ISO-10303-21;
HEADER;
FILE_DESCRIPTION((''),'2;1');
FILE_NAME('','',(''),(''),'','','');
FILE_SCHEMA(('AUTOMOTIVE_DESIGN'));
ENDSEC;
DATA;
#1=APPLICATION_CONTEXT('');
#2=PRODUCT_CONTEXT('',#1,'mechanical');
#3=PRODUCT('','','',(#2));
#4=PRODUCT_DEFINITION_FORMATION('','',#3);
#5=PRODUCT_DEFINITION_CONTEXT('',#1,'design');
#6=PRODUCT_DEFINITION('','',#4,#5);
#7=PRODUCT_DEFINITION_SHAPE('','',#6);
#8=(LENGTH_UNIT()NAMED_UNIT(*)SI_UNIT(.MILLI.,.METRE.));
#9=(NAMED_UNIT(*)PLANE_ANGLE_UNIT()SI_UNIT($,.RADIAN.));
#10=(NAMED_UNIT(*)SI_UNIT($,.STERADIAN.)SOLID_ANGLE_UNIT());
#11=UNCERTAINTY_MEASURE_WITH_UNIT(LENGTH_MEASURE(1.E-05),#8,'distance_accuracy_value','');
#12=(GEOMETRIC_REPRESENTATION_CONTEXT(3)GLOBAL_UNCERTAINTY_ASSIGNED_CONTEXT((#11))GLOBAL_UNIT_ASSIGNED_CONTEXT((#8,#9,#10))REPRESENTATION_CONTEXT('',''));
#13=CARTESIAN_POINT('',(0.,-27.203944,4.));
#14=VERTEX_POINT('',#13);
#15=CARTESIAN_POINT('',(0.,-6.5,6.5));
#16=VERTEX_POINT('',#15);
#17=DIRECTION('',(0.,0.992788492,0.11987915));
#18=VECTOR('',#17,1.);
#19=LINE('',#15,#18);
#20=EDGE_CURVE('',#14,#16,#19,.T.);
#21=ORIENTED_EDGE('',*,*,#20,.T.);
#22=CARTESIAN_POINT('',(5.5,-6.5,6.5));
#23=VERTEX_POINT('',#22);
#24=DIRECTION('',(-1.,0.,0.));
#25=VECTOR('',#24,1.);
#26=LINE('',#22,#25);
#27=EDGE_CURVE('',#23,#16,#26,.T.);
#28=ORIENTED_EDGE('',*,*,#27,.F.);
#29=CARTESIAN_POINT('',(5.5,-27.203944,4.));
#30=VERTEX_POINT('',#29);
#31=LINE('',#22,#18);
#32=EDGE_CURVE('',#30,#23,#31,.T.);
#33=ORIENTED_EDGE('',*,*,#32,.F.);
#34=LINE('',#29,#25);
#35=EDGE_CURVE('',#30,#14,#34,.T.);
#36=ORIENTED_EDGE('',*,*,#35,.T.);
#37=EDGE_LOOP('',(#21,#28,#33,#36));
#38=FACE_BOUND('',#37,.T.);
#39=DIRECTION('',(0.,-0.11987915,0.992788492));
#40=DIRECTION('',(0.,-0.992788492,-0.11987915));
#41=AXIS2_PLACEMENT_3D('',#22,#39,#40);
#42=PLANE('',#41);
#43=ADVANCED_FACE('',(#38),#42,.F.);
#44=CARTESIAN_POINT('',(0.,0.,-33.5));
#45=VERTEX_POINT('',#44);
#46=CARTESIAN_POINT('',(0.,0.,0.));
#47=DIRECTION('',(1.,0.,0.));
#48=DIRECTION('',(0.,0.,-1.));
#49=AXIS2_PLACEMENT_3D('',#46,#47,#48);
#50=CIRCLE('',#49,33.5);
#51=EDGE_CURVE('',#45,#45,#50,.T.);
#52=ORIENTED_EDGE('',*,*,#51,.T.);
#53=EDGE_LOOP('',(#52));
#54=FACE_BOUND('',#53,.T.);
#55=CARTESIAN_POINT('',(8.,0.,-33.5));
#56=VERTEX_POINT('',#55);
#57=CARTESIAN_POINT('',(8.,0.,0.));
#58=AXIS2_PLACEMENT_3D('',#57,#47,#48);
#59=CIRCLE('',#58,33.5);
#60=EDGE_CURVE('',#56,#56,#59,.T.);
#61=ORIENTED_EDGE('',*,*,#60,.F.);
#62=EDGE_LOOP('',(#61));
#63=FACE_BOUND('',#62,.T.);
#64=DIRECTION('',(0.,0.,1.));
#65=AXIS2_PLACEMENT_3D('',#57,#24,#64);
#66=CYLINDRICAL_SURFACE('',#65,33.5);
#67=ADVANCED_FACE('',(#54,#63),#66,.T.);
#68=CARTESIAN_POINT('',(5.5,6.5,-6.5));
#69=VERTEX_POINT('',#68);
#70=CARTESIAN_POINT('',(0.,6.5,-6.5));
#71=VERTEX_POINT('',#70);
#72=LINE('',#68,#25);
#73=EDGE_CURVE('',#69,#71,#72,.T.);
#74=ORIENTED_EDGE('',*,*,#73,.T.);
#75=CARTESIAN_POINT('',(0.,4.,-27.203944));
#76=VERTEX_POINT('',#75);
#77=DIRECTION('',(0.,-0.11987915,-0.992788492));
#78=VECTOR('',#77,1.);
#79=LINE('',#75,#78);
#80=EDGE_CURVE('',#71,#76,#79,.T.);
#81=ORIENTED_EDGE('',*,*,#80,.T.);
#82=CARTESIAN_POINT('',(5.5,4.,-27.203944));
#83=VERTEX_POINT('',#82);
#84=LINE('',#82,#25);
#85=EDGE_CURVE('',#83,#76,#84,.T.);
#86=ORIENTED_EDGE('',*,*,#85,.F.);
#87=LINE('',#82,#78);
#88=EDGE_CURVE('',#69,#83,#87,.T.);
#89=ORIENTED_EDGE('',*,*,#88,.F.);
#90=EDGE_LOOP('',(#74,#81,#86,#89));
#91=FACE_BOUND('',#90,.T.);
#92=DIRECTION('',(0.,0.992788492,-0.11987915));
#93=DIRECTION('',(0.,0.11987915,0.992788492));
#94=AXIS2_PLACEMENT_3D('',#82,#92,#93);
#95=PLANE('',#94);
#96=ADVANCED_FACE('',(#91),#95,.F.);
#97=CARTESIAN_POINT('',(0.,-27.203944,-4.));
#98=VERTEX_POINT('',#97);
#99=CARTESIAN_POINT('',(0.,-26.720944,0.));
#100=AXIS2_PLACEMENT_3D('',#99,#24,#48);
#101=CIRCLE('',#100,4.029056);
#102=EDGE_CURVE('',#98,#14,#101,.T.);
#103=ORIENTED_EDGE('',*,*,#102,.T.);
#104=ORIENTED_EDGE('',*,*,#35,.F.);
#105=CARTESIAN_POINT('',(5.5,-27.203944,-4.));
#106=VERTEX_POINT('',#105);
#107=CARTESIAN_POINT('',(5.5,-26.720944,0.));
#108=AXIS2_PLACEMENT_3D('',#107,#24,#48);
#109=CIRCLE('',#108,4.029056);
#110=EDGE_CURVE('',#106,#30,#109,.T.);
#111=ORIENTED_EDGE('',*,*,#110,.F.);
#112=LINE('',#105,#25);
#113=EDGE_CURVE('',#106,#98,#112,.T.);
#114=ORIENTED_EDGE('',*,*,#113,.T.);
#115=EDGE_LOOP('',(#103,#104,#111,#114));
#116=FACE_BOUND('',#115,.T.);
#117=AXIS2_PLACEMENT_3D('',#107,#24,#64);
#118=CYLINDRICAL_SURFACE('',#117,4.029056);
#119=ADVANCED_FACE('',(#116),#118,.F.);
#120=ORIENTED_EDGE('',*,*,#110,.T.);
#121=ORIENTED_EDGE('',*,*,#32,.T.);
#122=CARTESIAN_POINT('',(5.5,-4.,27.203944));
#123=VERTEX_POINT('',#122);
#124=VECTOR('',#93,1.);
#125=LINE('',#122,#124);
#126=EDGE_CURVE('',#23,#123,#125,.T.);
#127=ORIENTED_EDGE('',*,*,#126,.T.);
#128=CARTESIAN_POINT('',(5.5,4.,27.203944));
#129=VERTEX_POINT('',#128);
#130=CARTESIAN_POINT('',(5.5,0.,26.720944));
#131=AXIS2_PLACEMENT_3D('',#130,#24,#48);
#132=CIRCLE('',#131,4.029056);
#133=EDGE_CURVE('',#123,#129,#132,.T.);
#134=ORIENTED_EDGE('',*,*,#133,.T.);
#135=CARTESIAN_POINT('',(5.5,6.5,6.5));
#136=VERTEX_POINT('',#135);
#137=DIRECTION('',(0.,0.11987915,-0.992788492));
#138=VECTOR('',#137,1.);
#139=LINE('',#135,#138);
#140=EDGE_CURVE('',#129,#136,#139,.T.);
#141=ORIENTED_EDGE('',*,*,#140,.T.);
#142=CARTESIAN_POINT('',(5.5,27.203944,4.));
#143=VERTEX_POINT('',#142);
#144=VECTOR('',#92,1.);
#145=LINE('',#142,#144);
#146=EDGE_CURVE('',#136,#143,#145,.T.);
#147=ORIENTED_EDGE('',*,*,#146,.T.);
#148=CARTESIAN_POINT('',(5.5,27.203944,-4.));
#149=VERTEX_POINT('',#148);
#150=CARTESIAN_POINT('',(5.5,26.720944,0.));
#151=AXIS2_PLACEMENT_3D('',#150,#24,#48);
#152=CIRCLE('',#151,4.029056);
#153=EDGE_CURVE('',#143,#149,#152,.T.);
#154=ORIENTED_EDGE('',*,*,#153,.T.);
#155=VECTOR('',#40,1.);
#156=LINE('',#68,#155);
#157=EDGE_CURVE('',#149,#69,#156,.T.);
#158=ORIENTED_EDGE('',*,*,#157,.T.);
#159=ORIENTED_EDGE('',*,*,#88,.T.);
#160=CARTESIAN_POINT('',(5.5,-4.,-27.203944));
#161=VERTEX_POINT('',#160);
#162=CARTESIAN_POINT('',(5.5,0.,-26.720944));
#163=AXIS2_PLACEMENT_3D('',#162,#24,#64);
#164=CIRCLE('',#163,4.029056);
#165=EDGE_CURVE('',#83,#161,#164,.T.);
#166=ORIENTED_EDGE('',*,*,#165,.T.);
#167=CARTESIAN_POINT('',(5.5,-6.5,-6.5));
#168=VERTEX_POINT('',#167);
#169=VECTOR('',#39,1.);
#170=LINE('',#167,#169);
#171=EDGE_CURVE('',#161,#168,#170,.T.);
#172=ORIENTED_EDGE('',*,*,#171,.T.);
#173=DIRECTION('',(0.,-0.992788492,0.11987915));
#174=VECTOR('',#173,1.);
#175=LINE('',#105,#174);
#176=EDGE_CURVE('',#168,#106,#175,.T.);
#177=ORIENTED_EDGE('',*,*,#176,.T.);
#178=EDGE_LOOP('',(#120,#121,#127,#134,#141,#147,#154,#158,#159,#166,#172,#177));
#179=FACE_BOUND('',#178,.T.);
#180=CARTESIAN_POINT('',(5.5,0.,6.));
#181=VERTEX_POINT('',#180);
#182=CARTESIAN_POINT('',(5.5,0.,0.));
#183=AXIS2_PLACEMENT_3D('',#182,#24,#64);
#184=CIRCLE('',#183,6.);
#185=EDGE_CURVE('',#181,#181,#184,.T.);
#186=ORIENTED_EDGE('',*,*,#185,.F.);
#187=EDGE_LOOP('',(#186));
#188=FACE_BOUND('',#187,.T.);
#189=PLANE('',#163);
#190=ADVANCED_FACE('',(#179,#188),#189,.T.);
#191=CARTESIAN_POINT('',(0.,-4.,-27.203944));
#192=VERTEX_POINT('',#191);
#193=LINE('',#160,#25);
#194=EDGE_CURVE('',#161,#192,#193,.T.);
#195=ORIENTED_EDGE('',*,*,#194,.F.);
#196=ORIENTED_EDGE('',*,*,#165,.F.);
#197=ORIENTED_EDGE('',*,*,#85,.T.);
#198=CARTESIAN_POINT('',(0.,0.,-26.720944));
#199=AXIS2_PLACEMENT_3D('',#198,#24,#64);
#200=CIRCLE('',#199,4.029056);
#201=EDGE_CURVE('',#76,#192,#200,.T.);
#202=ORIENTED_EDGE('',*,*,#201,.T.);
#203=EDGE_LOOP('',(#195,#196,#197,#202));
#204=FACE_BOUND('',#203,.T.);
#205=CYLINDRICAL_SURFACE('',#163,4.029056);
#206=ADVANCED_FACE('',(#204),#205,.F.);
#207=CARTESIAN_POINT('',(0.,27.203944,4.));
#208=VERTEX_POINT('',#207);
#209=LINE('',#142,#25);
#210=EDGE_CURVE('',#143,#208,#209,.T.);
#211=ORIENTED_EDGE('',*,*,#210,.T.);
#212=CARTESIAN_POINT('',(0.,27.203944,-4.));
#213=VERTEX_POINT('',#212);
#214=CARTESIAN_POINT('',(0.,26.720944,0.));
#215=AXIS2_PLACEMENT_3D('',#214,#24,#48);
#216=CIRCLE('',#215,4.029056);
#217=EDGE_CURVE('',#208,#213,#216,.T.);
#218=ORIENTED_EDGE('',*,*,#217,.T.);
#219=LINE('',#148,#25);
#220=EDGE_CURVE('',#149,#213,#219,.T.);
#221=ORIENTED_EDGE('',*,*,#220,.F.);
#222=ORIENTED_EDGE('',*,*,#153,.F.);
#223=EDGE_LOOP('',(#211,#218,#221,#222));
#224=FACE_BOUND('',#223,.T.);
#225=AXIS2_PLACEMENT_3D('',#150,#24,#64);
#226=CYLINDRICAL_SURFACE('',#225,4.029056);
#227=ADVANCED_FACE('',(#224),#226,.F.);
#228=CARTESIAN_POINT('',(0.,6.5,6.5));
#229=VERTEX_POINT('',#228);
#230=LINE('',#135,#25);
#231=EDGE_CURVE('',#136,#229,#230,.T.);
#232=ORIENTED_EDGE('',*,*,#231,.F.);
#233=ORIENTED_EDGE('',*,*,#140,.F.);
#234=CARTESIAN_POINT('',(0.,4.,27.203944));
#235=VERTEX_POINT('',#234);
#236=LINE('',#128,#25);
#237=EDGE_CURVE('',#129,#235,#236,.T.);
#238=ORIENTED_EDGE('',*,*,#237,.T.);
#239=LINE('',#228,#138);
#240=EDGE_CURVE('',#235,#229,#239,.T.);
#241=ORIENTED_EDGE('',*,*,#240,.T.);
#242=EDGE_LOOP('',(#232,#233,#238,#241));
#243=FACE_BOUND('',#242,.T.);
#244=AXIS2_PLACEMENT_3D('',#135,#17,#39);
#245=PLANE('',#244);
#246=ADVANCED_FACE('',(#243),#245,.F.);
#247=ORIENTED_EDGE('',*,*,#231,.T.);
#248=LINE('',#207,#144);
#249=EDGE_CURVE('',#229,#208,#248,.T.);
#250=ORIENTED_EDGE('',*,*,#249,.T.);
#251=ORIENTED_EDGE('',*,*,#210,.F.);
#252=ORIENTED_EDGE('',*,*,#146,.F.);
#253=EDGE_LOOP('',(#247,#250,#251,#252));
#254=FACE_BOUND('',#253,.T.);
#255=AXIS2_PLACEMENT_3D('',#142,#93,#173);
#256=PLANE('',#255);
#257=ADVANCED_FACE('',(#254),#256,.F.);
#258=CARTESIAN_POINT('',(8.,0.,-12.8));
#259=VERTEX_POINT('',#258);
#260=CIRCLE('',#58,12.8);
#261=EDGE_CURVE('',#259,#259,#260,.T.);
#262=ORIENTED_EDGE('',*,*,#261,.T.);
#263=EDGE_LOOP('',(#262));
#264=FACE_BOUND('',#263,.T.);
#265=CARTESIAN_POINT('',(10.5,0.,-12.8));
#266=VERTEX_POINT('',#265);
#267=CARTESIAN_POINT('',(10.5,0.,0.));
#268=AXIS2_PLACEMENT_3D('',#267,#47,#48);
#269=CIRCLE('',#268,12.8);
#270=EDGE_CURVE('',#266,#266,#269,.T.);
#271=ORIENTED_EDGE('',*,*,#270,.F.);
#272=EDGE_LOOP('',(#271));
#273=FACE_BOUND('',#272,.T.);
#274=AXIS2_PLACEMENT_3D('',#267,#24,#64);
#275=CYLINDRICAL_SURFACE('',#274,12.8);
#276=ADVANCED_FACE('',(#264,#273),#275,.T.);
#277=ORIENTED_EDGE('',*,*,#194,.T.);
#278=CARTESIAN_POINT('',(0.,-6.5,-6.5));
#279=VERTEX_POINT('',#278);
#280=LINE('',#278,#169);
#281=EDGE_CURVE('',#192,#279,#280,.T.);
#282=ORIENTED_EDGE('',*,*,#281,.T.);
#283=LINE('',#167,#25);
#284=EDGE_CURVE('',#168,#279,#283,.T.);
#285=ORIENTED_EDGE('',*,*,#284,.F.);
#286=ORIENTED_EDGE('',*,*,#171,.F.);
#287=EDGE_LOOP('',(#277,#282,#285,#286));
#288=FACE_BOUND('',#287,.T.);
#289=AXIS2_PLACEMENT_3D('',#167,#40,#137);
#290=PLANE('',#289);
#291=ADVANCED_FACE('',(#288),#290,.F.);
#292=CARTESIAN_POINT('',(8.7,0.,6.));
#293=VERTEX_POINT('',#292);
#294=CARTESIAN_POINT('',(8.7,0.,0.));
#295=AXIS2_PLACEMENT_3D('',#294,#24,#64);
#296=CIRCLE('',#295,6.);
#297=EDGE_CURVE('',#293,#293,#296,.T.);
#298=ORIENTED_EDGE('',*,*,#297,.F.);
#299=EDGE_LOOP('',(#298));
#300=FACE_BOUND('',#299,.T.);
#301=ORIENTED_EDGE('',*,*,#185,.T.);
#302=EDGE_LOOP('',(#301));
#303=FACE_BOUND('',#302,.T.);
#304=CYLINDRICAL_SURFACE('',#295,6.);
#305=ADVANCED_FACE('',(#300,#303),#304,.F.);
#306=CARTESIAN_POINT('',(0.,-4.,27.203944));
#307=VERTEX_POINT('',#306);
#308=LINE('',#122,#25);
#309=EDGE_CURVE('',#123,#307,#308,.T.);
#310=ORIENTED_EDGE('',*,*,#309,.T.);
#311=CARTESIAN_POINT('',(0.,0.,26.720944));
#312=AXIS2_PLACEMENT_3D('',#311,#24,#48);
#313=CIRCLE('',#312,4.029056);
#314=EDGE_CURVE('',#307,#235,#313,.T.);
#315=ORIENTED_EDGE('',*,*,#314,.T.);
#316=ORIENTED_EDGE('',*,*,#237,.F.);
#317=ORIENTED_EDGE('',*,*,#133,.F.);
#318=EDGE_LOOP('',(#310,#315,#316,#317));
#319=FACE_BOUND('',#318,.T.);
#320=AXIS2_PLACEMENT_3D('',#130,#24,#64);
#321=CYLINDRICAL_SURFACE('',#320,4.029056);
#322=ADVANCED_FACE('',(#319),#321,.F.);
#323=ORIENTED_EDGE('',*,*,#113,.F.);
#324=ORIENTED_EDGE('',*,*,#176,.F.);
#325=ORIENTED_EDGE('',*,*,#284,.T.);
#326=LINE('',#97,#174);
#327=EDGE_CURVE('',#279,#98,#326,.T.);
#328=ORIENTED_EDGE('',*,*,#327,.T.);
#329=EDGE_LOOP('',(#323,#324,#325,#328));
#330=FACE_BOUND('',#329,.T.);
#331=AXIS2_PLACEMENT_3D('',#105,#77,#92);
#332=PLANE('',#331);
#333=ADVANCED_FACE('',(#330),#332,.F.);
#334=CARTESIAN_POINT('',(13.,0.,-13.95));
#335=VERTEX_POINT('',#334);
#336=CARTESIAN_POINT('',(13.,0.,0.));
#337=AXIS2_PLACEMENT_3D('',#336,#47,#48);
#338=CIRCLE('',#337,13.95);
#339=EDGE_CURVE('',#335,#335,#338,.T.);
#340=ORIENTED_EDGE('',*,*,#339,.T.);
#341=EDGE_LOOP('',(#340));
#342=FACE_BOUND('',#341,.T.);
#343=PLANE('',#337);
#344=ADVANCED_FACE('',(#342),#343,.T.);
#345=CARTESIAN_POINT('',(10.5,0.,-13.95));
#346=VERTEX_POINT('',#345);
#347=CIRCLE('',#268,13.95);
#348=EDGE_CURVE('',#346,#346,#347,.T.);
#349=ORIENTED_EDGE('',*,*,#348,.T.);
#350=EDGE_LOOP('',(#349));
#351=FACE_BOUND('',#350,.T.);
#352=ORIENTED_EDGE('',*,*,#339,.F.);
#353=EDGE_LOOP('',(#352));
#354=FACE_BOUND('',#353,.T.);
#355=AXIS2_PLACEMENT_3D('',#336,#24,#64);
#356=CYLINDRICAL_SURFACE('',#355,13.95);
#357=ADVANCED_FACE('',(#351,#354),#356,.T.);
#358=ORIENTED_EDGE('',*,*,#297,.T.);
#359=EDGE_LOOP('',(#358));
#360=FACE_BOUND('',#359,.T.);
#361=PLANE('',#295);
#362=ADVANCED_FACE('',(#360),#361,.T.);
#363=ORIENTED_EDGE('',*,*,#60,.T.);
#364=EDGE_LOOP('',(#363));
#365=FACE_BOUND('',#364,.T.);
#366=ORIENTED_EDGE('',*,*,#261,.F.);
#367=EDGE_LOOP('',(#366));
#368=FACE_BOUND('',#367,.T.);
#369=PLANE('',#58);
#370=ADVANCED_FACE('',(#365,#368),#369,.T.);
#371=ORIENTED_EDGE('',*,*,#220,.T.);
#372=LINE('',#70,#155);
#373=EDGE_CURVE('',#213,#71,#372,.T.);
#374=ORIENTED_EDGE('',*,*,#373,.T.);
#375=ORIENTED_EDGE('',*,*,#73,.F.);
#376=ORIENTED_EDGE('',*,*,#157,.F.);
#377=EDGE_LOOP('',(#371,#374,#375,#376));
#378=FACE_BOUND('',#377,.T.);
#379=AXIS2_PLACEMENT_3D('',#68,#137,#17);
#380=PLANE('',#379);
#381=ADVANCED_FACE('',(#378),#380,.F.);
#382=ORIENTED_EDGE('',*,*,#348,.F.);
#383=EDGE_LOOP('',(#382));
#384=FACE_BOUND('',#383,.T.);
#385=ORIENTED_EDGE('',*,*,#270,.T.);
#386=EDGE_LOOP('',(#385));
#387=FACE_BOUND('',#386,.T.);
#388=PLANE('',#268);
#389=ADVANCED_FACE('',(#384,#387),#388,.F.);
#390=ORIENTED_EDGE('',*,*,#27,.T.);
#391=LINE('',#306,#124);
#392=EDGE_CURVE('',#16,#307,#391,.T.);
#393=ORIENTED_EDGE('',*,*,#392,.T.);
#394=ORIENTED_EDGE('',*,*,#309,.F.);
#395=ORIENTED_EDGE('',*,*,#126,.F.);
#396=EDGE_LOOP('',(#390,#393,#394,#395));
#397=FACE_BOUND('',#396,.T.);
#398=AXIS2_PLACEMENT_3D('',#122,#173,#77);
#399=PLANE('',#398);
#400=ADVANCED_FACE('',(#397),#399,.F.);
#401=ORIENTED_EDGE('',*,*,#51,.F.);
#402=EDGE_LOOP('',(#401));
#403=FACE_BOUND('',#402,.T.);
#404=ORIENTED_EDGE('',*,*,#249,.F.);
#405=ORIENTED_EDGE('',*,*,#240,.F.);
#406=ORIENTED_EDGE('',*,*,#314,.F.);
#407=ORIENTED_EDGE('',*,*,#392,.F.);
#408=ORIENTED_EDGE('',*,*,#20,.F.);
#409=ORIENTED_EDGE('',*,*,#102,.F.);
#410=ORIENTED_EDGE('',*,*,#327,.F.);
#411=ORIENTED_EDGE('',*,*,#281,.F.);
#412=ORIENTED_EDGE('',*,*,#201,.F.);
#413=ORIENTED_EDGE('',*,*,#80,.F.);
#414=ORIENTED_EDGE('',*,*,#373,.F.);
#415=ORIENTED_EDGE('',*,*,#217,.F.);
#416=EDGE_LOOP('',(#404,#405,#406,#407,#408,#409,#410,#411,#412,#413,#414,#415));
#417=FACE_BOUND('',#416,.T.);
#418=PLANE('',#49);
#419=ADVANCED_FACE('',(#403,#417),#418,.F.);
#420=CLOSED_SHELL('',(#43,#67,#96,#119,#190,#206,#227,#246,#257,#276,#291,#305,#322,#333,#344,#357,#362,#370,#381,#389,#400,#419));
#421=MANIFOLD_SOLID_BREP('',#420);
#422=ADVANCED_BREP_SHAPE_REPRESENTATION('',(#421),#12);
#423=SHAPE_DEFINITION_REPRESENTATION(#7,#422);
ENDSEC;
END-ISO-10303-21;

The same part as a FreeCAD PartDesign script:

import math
import FreeCAD as App
import Part
import Sketcher
Q = App.Units.Quantity

doc = App.newDocument("Part")
body = doc.addObject("PartDesign::Body", "Body")

sketch1 = body.newObject("Sketcher::SketchObject", "Sketch")
sketch1.AttachmentSupport = (doc.getObject("YZ_Plane"), [""])
sketch1.MapMode = "FlatFace"
sketch1.addGeometry(Part.Circle(App.Vector(0, 0, 0), App.Vector(0, 0, 1), 33.5), False)
sketch1.addConstraint([
    Sketcher.Constraint("Coincident", 0, 3, -1, 1),
    Sketcher.Constraint("Diameter", 0, Q("67 mm")),
])
pad1 = body.newObject("PartDesign::Pad", "Pad")
pad1.Profile = sketch1
pad1.Length = 8

sketch2 = body.newObject("Sketcher::SketchObject", "Sketch001")
sketch2.AttachmentSupport = (doc.getObject("YZ_Plane"), [""])
sketch2.MapMode = "FlatFace"
sketch2.AttachmentOffset = App.Placement(App.Vector(0, 0, 8), App.Rotation())
sketch2.addGeometry(Part.Circle(App.Vector(0, 0, 0), App.Vector(0, 0, 1), 12.8), False)
sketch2.addConstraint([
    Sketcher.Constraint("Coincident", 0, 3, -1, 1),
    Sketcher.Constraint("Diameter", 0, Q("25.6 mm")),
])
pad2 = body.newObject("PartDesign::Pad", "Pad001")
pad2.Profile = sketch2
pad2.Length = 2.5

sketch3 = body.newObject("Sketcher::SketchObject", "Sketch002")
sketch3.AttachmentSupport = (doc.getObject("YZ_Plane"), [""])
sketch3.MapMode = "FlatFace"
sketch3.AttachmentOffset = App.Placement(App.Vector(0, 0, 10.5), App.Rotation())
sketch3.addGeometry(Part.Circle(App.Vector(0, 0, 0), App.Vector(0, 0, 1), 13.95), False)
sketch3.addConstraint([
    Sketcher.Constraint("Coincident", 0, 3, -1, 1),
    Sketcher.Constraint("Diameter", 0, Q("27.9 mm")),
])
pad3 = body.newObject("PartDesign::Pad", "Pad002")
pad3.Profile = sketch3
pad3.Length = 2.5

sketch4 = body.newObject("Sketcher::SketchObject", "Sketch003")
sketch4.AttachmentSupport = (doc.getObject("YZ_Plane"), [""])
sketch4.MapMode = "FlatFace"
sketch4.addGeometry([
    Part.LineSegment(App.Vector(-6.5, -6.5, 0), App.Vector(-27.203944, -4, 0)),
    Part.ArcOfCircle(Part.Circle(App.Vector(-26.720944, 0, 0), App.Vector(0, 0, 1), 4.029056), math.radians(96.885128), math.radians(263.114872)),
    Part.LineSegment(App.Vector(-27.203944, 4, 0), App.Vector(-6.5, 6.5, 0)),
    Part.LineSegment(App.Vector(-6.5, 6.5, 0), App.Vector(-4, 27.203944, 0)),
    Part.ArcOfCircle(Part.Circle(App.Vector(0, 26.720944, 0), App.Vector(0, 0, 1), 4.029056), math.radians(6.885128), math.radians(173.114872)),
    Part.LineSegment(App.Vector(4, 27.203944, 0), App.Vector(6.5, 6.5, 0)),
    Part.LineSegment(App.Vector(6.5, 6.5, 0), App.Vector(27.203944, 4, 0)),
    Part.ArcOfCircle(Part.Circle(App.Vector(26.720944, 0, 0), App.Vector(0, 0, 1), 4.029056), math.radians(-83.114872), math.radians(83.114872)),
    Part.LineSegment(App.Vector(27.203944, -4, 0), App.Vector(6.5, -6.5, 0)),
    Part.LineSegment(App.Vector(6.5, -6.5, 0), App.Vector(4, -27.203944, 0)),
    Part.ArcOfCircle(Part.Circle(App.Vector(0, -26.720944, 0), App.Vector(0, 0, 1), 4.029056), math.radians(-173.114872), math.radians(-6.885128)),
    Part.LineSegment(App.Vector(-4, -27.203944, 0), App.Vector(-6.5, -6.5, 0)),
], False)
sketch4.addConstraint([
    Sketcher.Constraint("Tangent", 0, 2, 1, 2),
    Sketcher.Constraint("Tangent", 1, 1, 2, 1),
    Sketcher.Constraint("Coincident", 2, 2, 3, 1),
    Sketcher.Constraint("Tangent", 3, 2, 4, 2),
    Sketcher.Constraint("Tangent", 4, 1, 5, 1),
    Sketcher.Constraint("Coincident", 5, 2, 6, 1),
    Sketcher.Constraint("Tangent", 6, 2, 7, 2),
    Sketcher.Constraint("Tangent", 7, 1, 8, 1),
    Sketcher.Constraint("Coincident", 8, 2, 9, 1),
    Sketcher.Constraint("Tangent", 9, 2, 10, 2),
    Sketcher.Constraint("Tangent", 10, 1, 11, 1),
    Sketcher.Constraint("Coincident", 11, 2, 0, 1),
    Sketcher.Constraint("Equal", 1, 4),
    Sketcher.Constraint("Equal", 4, 7),
    Sketcher.Constraint("Equal", 7, 10),
    Sketcher.Constraint("Symmetric", 1, 3, 7, 3, -1, 1),
    Sketcher.Constraint("Symmetric", 4, 3, 10, 3, -1, 1),
    Sketcher.Constraint("Symmetric", 2, 2, 8, 2, -1, 1),
    Sketcher.Constraint("Symmetric", 5, 2, 11, 2, -1, 1),
    Sketcher.Constraint("Symmetric", 3, 2, 4, 1, -2),
    Sketcher.Constraint("Symmetric", 1, 1, 6, 2, -2),
    Sketcher.Constraint("Perpendicular", 0, 3),
    Sketcher.Constraint("Equal", 2, 3),
    Sketcher.Constraint("DistanceY", 0, 2, -1, 1, Q("4 mm")),
    Sketcher.Constraint("DistanceX", 2, 2, 5, 2, Q("13 mm")),
    Sketcher.Constraint("DistanceX", 0, 2, 1, 3, Q("0.483 mm")),
])
pocket1 = body.newObject("PartDesign::Pocket", "Pocket")
pocket1.Profile = sketch4
pocket1.Length = 5.5
pocket1.Reversed = True

sketch5 = body.newObject("Sketcher::SketchObject", "Sketch004")
sketch5.AttachmentSupport = (doc.getObject("YZ_Plane"), [""])
sketch5.MapMode = "FlatFace"
sketch5.AttachmentOffset = App.Placement(App.Vector(0, 0, 5.5), App.Rotation())
sketch5.addGeometry(Part.Circle(App.Vector(0, 0, 0), App.Vector(0, 0, 1), 6), False)
sketch5.addConstraint([
    Sketcher.Constraint("Coincident", 0, 3, -1, 1),
    Sketcher.Constraint("Diameter", 0, Q("12 mm")),
])
pocket2 = body.newObject("PartDesign::Pocket", "Pocket001")
pocket2.Profile = sketch5
pocket2.Length = 3.2
pocket2.Reversed = True

doc.recompute()
